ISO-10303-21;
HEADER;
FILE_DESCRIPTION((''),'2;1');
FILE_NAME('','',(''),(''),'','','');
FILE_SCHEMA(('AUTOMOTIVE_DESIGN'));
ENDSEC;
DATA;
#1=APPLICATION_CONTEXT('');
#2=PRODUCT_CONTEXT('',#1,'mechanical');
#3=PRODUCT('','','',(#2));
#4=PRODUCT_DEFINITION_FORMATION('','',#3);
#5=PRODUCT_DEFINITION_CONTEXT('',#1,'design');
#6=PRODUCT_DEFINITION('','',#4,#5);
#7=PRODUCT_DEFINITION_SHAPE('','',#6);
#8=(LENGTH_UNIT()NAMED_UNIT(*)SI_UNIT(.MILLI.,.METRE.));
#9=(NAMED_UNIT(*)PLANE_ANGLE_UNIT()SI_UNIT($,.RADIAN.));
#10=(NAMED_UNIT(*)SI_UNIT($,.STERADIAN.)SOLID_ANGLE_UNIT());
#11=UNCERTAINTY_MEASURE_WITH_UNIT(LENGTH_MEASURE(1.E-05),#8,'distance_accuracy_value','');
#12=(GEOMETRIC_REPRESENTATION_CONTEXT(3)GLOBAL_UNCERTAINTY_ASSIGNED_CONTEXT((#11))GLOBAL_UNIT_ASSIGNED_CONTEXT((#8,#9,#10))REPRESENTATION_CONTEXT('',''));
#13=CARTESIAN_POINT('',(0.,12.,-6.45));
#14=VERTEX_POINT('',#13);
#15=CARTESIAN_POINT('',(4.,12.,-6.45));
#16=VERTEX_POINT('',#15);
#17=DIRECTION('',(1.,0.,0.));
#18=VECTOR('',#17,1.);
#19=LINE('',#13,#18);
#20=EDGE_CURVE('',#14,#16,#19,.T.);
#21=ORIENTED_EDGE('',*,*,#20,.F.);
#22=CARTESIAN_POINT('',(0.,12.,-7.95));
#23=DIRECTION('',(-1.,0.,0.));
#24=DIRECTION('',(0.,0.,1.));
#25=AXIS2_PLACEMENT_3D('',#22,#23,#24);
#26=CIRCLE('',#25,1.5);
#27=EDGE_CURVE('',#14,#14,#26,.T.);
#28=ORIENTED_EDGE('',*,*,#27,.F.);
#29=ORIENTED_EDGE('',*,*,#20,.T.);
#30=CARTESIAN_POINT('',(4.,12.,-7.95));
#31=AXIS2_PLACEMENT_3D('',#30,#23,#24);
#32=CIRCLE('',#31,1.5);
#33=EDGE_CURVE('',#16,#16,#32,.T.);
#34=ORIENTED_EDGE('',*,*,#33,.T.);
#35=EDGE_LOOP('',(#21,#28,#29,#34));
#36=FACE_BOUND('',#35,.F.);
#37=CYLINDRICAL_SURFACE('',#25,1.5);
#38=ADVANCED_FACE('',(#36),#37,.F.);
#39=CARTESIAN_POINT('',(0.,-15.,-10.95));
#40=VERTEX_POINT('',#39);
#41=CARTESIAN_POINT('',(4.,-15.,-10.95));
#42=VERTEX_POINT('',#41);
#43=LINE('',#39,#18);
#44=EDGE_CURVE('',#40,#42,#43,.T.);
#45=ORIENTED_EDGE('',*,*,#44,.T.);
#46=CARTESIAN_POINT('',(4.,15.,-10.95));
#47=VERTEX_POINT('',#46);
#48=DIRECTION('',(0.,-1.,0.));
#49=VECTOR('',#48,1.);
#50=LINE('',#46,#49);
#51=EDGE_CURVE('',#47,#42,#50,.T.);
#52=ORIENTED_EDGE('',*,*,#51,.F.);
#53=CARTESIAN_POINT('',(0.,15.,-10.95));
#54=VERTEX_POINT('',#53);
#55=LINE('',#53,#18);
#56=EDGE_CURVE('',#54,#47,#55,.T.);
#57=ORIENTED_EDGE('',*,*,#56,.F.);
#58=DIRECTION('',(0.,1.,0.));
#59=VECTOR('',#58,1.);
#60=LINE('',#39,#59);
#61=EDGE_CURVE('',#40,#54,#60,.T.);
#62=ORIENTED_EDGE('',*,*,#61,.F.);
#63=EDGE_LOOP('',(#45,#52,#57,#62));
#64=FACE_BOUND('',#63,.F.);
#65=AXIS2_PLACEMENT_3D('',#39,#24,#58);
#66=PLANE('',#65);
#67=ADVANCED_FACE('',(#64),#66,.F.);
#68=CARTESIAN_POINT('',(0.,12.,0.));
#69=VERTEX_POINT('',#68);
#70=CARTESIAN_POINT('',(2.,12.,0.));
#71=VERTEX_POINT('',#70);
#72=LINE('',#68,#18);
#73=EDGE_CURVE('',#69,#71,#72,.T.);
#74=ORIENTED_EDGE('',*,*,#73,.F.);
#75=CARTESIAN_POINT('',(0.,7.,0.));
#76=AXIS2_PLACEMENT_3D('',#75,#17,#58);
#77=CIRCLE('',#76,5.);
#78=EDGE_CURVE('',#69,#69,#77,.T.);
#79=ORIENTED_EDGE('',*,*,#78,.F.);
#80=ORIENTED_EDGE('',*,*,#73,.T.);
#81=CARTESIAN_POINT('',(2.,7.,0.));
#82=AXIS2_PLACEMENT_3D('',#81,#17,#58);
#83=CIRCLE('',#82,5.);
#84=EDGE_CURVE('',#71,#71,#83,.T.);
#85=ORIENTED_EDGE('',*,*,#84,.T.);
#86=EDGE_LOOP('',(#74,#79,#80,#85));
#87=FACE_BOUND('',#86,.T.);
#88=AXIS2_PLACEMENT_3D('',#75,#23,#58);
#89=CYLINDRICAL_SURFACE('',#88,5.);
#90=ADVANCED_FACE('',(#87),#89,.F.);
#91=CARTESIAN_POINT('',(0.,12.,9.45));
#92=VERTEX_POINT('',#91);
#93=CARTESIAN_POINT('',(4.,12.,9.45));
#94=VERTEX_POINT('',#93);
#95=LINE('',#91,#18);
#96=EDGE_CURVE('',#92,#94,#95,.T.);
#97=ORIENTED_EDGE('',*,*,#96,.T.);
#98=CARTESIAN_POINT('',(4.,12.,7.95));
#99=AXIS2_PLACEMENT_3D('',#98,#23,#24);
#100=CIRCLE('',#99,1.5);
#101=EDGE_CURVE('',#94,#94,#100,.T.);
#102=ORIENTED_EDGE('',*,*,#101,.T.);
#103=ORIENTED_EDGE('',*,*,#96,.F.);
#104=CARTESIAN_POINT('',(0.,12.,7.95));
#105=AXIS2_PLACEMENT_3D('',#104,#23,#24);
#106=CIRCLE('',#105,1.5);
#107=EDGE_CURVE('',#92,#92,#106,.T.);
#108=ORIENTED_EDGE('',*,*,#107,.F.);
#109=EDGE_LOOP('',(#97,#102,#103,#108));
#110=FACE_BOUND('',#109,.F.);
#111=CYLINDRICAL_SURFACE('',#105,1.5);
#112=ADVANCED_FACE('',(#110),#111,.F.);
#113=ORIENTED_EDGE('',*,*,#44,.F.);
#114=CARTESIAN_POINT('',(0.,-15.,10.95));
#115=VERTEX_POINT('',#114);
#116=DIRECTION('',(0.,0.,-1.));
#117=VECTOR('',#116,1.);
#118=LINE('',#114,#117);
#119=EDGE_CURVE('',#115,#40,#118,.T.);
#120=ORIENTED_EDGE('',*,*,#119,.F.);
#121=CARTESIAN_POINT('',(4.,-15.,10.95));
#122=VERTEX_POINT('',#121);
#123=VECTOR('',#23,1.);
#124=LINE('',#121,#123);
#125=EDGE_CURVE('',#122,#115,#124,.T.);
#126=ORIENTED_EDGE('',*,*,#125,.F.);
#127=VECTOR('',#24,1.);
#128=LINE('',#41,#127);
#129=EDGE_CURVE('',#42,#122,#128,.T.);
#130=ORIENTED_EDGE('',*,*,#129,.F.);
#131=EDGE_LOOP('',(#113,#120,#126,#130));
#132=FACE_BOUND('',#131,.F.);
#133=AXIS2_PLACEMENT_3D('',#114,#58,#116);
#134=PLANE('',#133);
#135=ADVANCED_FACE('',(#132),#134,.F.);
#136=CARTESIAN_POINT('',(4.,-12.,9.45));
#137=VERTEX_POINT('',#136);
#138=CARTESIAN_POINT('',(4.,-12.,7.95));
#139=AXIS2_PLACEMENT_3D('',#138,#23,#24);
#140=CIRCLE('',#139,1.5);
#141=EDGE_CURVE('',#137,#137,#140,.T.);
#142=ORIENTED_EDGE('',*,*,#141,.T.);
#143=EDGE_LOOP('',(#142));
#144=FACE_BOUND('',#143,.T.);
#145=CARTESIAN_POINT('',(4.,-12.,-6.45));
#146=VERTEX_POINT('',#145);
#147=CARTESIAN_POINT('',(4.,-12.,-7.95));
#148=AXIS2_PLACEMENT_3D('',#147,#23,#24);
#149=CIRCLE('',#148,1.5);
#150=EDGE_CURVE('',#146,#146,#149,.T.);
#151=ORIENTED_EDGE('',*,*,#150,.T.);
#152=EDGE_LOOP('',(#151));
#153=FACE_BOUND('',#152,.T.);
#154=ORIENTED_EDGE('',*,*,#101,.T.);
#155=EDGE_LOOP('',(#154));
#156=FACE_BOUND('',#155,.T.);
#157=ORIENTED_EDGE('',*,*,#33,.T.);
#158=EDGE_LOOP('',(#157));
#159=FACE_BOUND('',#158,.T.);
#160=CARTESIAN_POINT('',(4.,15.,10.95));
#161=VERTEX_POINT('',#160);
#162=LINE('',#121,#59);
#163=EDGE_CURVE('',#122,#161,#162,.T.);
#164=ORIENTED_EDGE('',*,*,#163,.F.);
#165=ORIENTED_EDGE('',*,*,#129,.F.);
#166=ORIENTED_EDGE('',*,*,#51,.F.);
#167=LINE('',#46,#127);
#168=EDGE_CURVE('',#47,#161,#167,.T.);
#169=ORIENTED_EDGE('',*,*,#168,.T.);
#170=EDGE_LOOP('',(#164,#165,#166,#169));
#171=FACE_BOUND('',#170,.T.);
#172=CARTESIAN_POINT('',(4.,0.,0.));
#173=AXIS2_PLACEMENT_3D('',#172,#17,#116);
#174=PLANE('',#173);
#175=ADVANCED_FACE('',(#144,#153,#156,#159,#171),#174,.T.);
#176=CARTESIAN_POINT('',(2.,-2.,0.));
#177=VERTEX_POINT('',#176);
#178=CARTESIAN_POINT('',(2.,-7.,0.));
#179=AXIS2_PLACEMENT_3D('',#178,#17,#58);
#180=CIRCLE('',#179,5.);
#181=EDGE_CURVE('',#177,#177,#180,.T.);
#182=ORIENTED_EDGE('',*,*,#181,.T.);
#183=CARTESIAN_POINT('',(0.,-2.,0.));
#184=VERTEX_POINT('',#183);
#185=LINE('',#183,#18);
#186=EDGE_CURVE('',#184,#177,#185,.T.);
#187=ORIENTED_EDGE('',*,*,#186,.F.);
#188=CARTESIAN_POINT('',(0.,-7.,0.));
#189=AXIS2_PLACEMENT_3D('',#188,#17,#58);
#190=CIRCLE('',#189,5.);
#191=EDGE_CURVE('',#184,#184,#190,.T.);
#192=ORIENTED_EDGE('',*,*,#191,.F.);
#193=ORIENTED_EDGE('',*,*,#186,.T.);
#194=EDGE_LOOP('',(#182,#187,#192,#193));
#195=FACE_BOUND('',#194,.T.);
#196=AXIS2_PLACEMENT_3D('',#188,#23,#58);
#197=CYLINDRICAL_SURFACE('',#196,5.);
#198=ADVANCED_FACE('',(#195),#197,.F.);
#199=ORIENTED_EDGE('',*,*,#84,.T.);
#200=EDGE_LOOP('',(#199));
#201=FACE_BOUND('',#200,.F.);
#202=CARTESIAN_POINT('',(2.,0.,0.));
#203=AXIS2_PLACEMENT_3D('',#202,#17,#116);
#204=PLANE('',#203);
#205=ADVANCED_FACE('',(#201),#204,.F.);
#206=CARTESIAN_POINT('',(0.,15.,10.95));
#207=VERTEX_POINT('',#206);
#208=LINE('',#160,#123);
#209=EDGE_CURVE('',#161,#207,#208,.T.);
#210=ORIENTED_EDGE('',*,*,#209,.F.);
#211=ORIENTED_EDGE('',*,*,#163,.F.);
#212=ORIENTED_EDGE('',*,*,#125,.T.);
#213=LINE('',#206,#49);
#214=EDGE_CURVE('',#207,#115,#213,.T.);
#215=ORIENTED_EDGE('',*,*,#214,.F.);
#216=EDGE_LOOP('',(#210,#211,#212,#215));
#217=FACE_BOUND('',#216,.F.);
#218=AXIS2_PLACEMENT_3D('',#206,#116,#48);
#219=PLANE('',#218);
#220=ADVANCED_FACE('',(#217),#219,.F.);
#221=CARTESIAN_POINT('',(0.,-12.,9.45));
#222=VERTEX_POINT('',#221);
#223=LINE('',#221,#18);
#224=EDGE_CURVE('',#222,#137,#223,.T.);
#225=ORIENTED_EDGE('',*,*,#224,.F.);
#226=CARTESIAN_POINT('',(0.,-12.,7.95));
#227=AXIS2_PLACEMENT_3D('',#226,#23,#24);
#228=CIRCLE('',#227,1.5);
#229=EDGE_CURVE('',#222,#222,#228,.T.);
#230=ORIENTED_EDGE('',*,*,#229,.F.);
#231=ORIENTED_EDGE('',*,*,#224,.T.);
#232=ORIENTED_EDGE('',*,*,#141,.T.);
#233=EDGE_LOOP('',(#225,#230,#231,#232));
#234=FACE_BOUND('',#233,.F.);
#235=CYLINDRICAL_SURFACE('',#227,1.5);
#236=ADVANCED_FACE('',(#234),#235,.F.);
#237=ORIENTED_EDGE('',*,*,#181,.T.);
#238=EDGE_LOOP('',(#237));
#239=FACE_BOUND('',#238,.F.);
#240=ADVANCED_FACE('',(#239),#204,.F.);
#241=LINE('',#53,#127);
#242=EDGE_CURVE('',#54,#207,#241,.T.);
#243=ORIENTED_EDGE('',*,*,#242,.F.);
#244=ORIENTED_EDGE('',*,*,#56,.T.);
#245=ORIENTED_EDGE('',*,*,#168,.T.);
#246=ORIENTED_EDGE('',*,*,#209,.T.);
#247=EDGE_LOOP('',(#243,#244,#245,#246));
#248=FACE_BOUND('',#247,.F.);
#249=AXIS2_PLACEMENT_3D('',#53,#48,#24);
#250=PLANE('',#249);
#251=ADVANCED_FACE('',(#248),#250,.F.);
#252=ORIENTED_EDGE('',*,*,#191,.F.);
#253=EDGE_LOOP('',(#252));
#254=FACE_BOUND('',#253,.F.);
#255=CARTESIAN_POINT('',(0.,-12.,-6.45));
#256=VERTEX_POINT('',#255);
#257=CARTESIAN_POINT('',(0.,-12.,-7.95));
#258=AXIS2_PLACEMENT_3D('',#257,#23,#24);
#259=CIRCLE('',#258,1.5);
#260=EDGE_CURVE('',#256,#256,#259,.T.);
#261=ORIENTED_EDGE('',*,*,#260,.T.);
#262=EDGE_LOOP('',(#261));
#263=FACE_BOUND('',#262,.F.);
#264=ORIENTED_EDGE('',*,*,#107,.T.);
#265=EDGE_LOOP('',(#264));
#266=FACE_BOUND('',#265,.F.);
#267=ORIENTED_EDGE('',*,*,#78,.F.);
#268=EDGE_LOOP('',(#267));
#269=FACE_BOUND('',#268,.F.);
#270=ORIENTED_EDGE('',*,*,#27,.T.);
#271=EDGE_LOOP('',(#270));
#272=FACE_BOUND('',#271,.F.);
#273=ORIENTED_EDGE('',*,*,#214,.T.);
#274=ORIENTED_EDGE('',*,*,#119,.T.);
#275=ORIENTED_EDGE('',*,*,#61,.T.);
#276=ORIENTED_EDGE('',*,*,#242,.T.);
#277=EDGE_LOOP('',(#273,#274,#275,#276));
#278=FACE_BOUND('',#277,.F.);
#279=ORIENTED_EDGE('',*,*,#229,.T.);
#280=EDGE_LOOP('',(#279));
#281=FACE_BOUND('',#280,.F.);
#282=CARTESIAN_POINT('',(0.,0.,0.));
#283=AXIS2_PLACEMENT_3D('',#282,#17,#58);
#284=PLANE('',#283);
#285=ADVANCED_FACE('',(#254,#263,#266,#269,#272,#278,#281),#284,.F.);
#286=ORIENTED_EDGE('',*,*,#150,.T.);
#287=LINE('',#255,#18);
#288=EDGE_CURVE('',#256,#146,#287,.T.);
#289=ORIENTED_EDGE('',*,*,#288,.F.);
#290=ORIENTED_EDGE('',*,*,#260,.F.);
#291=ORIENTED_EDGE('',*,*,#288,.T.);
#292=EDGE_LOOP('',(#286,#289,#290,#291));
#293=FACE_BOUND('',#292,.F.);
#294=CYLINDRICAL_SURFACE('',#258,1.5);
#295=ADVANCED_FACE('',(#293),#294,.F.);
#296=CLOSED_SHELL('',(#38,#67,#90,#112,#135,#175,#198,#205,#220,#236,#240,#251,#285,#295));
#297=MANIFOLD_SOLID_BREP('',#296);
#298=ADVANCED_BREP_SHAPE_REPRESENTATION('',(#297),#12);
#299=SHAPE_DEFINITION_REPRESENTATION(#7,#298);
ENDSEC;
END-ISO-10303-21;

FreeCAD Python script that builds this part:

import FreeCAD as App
import Part
import Sketcher

V = App.Vector
Q = App.Units.Quantity


def add_polygon(sketch, points):
    """Adds a closed chain of lines whose ends are joined by coincident constraints."""
    first, n = sketch.GeometryCount, len(points)
    for a, b in zip(points, points[1:] + points[:1]):
        sketch.addGeometry(Part.LineSegment(App.Vector(*a, 0), App.Vector(*b, 0)), False)
    for i in range(n):
        sketch.addConstraint(Sketcher.Constraint("Coincident", first + i, 2, first + (i + 1) % n, 1))

doc = App.newDocument("Part")
body = doc.addObject("PartDesign::Body", "Body")

# Sketch on YZ plane
sketch1 = body.newObject("Sketcher::SketchObject", "Sketch")
sketch1.AttachmentSupport = (doc.getObject("YZ_Plane"), [""])
sketch1.MapMode = "FlatFace"
add_polygon(sketch1, [(-15, 11), (-15, -11), (15, -11), (15, 11)])  # lines 0-3
sketch1.addGeometry(Part.Circle(V(-7, 0, 0), V(0, 0, 1), 5), False)  # 4
sketch1.addGeometry(Part.Circle(V(7, 0, 0), V(0, 0, 1), 5), False)  # 5
sketch1.addConstraint(Sketcher.Constraint("Vertical", 0))
sketch1.addConstraint(Sketcher.Constraint("Horizontal", 1))
sketch1.addConstraint(Sketcher.Constraint("Vertical", 2))
sketch1.addConstraint(Sketcher.Constraint("Horizontal", 3))
sketch1.addConstraint(Sketcher.Constraint("Equal", 4, 5))
sketch1.addConstraint(Sketcher.Constraint("Symmetric", 4, 3, 5, 3, -1, 1))
sketch1.addConstraint(Sketcher.Constraint("Symmetric", 0, 2, 2, 2, -1, 1))
sketch1.addConstraint(Sketcher.Constraint("PointOnObject", 4, 3, -1))
sketch1.addConstraint(Sketcher.Constraint("Diameter", 4, Q("10 mm")))
sketch1.addConstraint(Sketcher.Constraint("DistanceX", 1, 1, 1, 2, Q("30 mm")))
sketch1.addConstraint(Sketcher.Constraint("DistanceY", 0, 2, 0, 1, Q("21.9 mm")))
sketch1.addConstraint(Sketcher.Constraint("DistanceX", 4, 3, 5, 3, Q("14 mm")))
pad1 = body.newObject("PartDesign::Pad", "Pad")
pad1.Profile = sketch1
pad1.Length = 2

# Sketch on YZ plane
sketch2 = body.newObject("Sketcher::SketchObject", "Sketch001")
sketch2.AttachmentSupport = (doc.getObject("YZ_Plane"), [""])
sketch2.MapMode = "FlatFace"
sketch2.AttachmentOffset = App.Placement(V(0, 0, 2), App.Rotation())
add_polygon(sketch2, [(-15, -11), (15, -11), (15, 11), (-15, 11)])  # lines 0-3
sketch2.addConstraint(Sketcher.Constraint("Horizontal", 0))
sketch2.addConstraint(Sketcher.Constraint("Vertical", 1))
sketch2.addConstraint(Sketcher.Constraint("Horizontal", 2))
sketch2.addConstraint(Sketcher.Constraint("Vertical", 3))
sketch2.addConstraint(Sketcher.Constraint("Symmetric", 0, 2, 2, 2, -1, 1))
sketch2.addConstraint(Sketcher.Constraint("DistanceX", 0, 1, 0, 2, Q("30 mm")))
sketch2.addConstraint(Sketcher.Constraint("DistanceY", 1, 1, 1, 2, Q("21.9 mm")))
pad2 = body.newObject("PartDesign::Pad", "Pad001")
pad2.Profile = sketch2
pad2.Length = 2

# Sketch on YZ plane
sketch3 = body.newObject("Sketcher::SketchObject", "Sketch002")
sketch3.AttachmentSupport = (doc.getObject("YZ_Plane"), [""])
sketch3.MapMode = "FlatFace"
sketch3.addGeometry(Part.Circle(V(12, -8, 0), V(0, 0, 1), 1.5), False)
sketch3.addGeometry(Part.Circle(V(-12, -8, 0), V(0, 0, 1), 1.5), False)
sketch3.addGeometry(Part.Circle(V(12, 8, 0), V(0, 0, 1), 1.5), False)
sketch3.addGeometry(Part.Circle(V(-12, 8, 0), V(0, 0, 1), 1.5), False)
sketch3.addConstraint(Sketcher.Constraint("Equal", 0, 1))
sketch3.addConstraint(Sketcher.Constraint("Equal", 1, 2))
sketch3.addConstraint(Sketcher.Constraint("Equal", 2, 3))
sketch3.addConstraint(Sketcher.Constraint("Symmetric", 1, 3, 2, 3, -1, 1))
sketch3.addConstraint(Sketcher.Constraint("Symmetric", 0, 3, 3, 3, -1, 1))
sketch3.addConstraint(Sketcher.Constraint("Symmetric", 0, 3, 1, 3, -2))
sketch3.addConstraint(Sketcher.Constraint("Diameter", 0, Q("3 mm")))
sketch3.addConstraint(Sketcher.Constraint("DistanceX", -1, 1, 0, 3, Q("12 mm")))
sketch3.addConstraint(Sketcher.Constraint("DistanceY", 0, 3, 2, 3, Q("15.9 mm")))
pocket1 = body.newObject("PartDesign::Pocket", "Pocket")
pocket1.Profile = sketch3
pocket1.Length = 4
pocket1.Reversed = True

doc.recompute()
